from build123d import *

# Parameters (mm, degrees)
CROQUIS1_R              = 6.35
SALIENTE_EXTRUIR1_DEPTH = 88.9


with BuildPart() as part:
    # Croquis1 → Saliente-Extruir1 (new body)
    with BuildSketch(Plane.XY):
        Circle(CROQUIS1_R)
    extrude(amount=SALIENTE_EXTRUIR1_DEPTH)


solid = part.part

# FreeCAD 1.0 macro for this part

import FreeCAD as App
import Part
import Sketcher

V = App.Vector
Q = App.Units.Quantity

doc = App.newDocument("Part")
params = doc.addObject("Spreadsheet::Sheet", "Params")
for row, (alias, value) in enumerate([
    ("sketch1_diameter", "0.5 in"),
    ("pad1_length", "3.5 in"),
], start=1):
    params.set(f"A{row}", alias)
    params.set(f"B{row}", "=" + value)
    params.setAlias(f"B{row}", alias)

body = doc.addObject("PartDesign::Body", "Body")

# Sketch on XY plane
sketch1 = doc.addObject("Sketcher::SketchObject", "Sketch")
body.addObject(sketch1)
sketch1.AttachmentSupport = (doc.XY_Plane, [""])
sketch1.MapMode = "FlatFace"
sketch1.addGeometry(Part.Circle(V(0, 0, 0), V(0, 0, 1), 6.35), False)
sketch1.addConstraint(Sketcher.Constraint("Coincident", 0, 3, -1, 1))
sketch1.addConstraint(Sketcher.Constraint("Diameter", 0, Q("0.5 in")))
sketch1.setExpression("Constraints[1]", "Params.sketch1_diameter")
pad1 = doc.addObject("PartDesign::Pad", "Pad")
body.addObject(pad1)
pad1.Profile = sketch1
pad1.setExpression("Length", "Params.pad1_length")

doc.recompute()
